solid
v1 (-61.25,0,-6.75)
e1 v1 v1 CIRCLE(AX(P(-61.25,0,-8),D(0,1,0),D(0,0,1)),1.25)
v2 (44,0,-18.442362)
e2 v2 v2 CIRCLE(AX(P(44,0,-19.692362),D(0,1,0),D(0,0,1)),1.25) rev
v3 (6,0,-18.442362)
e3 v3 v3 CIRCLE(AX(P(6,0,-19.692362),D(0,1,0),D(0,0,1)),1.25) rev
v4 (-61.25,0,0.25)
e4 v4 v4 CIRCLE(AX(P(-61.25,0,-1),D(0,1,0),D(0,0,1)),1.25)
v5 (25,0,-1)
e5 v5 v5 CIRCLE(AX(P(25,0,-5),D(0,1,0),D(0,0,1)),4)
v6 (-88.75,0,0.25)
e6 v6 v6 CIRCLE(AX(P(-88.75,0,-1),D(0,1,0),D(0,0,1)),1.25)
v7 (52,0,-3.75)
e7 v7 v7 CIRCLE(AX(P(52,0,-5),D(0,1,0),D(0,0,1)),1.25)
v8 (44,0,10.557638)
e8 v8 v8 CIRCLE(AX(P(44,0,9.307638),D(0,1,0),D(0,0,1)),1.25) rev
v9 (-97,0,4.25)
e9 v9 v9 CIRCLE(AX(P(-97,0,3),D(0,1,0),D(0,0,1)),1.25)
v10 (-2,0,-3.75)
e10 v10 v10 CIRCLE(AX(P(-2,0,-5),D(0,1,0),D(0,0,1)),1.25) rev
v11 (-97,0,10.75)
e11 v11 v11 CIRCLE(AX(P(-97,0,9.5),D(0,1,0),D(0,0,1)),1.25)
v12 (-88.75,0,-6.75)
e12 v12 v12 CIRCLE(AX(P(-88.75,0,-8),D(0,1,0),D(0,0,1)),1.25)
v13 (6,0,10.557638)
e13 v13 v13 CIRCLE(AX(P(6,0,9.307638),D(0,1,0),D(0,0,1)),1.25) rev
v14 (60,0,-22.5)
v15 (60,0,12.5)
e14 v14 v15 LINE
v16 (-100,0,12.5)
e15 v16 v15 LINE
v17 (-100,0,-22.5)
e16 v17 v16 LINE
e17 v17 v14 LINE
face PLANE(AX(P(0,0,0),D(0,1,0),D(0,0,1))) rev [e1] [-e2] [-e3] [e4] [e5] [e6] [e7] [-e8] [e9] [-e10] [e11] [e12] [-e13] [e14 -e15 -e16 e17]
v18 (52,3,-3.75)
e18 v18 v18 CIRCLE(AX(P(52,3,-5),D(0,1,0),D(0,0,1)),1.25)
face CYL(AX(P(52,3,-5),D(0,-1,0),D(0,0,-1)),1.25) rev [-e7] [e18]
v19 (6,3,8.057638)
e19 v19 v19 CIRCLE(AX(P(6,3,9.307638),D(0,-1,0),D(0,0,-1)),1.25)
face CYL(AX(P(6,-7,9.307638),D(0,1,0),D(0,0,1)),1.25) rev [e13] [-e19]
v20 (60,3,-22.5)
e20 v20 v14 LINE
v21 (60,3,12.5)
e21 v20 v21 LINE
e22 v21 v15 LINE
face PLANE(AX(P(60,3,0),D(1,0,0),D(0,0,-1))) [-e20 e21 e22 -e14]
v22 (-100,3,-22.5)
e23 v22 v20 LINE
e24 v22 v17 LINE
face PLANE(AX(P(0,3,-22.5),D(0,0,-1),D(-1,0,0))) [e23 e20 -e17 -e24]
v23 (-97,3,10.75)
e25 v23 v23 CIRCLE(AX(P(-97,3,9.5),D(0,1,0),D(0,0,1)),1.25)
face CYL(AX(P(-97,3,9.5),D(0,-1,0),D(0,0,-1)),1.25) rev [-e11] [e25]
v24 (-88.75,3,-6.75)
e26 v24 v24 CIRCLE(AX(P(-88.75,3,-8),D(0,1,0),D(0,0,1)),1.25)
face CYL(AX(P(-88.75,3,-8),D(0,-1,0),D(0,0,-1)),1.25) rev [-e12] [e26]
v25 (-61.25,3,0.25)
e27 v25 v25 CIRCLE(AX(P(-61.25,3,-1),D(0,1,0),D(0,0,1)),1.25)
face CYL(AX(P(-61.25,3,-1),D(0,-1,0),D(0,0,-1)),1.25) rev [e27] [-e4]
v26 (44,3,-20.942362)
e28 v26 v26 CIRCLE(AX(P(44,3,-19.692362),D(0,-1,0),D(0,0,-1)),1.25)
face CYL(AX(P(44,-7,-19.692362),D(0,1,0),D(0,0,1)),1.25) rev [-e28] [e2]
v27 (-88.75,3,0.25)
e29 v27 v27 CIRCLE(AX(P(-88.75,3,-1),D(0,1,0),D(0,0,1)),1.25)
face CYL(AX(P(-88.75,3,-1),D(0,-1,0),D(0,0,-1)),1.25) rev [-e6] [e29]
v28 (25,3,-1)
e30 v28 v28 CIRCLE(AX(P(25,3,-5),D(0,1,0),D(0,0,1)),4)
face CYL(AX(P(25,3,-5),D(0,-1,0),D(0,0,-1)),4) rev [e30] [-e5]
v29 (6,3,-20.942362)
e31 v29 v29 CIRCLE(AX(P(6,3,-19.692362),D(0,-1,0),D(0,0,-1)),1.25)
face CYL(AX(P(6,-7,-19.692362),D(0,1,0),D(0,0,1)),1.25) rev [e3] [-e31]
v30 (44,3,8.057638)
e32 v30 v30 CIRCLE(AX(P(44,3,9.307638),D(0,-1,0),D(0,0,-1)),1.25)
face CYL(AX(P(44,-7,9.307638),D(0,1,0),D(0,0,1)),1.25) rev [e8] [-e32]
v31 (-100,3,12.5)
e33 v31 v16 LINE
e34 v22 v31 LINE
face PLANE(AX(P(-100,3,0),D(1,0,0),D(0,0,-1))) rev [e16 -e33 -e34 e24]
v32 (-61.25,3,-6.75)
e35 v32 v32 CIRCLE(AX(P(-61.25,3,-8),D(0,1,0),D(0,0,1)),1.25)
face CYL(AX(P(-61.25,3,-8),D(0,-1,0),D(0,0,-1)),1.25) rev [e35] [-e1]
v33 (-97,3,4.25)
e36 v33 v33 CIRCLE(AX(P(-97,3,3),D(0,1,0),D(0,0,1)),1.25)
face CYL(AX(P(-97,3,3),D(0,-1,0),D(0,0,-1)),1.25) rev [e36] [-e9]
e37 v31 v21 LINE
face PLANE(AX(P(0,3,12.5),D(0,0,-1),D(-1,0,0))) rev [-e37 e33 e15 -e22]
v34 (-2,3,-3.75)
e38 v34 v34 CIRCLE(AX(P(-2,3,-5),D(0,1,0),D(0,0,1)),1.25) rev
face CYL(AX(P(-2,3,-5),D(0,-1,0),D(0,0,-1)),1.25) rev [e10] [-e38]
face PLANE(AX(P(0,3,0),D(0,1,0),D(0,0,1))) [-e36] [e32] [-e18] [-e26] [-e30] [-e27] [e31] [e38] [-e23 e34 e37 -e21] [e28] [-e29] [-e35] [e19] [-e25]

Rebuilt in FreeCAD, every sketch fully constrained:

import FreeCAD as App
import Part
import Sketcher

doc = App.newDocument("Part")
body = doc.addObject("PartDesign::Body", "Body")

# Sketch on XZ plane
sketch1 = body.newObject("Sketcher::SketchObject", "Sketch")
sketch1.AttachmentSupport = (doc.getObject("XZ_Plane"), [""])
sketch1.MapMode = "FlatFace"
sketch1.addGeometry([
    Part.LineSegment(App.Vector(-100, -22.5, 0), App.Vector(-100, 12.5, 0)),  # 0
    Part.LineSegment(App.Vector(-100, 12.5, 0), App.Vector(60, 12.5, 0)),  # 1
    Part.LineSegment(App.Vector(60, 12.5, 0), App.Vector(60, -22.5, 0)),  # 2
    Part.LineSegment(App.Vector(60, -22.5, 0), App.Vector(-100, -22.5, 0)),  # 3
    Part.Circle(App.Vector(-97, 9.5, 0), App.Vector(0, 0, 1), 1.2),  # 4
    Part.Circle(App.Vector(-97, 3, 0), App.Vector(0, 0, 1), 1.2),  # 5
    Part.Circle(App.Vector(-88.8, -1, 0), App.Vector(0, 0, 1), 1.2),  # 6
    Part.Circle(App.Vector(-61.2, -1, 0), App.Vector(0, 0, 1), 1.2),  # 7
    Part.Circle(App.Vector(-88.8, -8, 0), App.Vector(0, 0, 1), 1.2),  # 8
    Part.Circle(App.Vector(-61.2, -8, 0), App.Vector(0, 0, 1), 1.2),  # 9
    Part.Circle(App.Vector(-2, -5, 0), App.Vector(0, 0, 1), 1.2),  # 10
    Part.Circle(App.Vector(25, -5, 0), App.Vector(0, 0, 1), 4),  # 11
    Part.Circle(App.Vector(52, -5, 0), App.Vector(0, 0, 1), 1.2),  # 12
], False)
sketch1.addConstraint([
    Sketcher.Constraint("Coincident", 0, 2, 1, 1),
    Sketcher.Constraint("Coincident", 1, 2, 2, 1),
    Sketcher.Constraint("Coincident", 2, 2, 3, 1),
    Sketcher.Constraint("Coincident", 3, 2, 0, 1),
    Sketcher.Constraint("Vertical", 0),
    Sketcher.Constraint("Horizontal", 1),
    Sketcher.Constraint("Vertical", 2),
    Sketcher.Constraint("Horizontal", 3),
    Sketcher.Constraint("Equal", 4, 5),
    Sketcher.Constraint("Equal", 5, 6),
    Sketcher.Constraint("Equal", 6, 7),
    Sketcher.Constraint("Equal", 7, 8),
    Sketcher.Constraint("Equal", 8, 9),
    Sketcher.Constraint("Equal", 9, 10),
    Sketcher.Constraint("Equal", 10, 12),
    Sketcher.Constraint("Horizontal", 6, 3, 7, 3),
    Sketcher.Constraint("Horizontal", 8, 3, 9, 3),
    Sketcher.Constraint("Horizontal", 10, 3, 11, 3),
    Sketcher.Constraint("Horizontal", 11, 3, 12, 3),
    Sketcher.Constraint("Vertical", 4, 3, 5, 3),
    Sketcher.Constraint("Vertical", 6, 3, 8, 3),
    Sketcher.Constraint("Vertical", 7, 3, 9, 3),
    Sketcher.Constraint("Diameter", 11, 8.0),
    Sketcher.Constraint("Diameter", 4, 2.5),
    Sketcher.Constraint("DistanceX", 1, 1, 1, 2, 160.0),
    Sketcher.Constraint("DistanceY", 0, 1, 0, 2, 35.0),
    Sketcher.Constraint("DistanceX", 4, 3, -1, 1, 97.0),
    Sketcher.Constraint("DistanceY", -1, 1, 5, 3, 3.0),
    Sketcher.Constraint("DistanceY", 6, 3, -1, 1, 1.0),
    Sketcher.Constraint("DistanceY", 8, 3, -1, 1, 8.0),
    Sketcher.Constraint("DistanceX", 10, 3, -1, 1, 2.0),
    Sketcher.Constraint("DistanceY", 10, 3, -1, 1, 5.0),
    Sketcher.Constraint("DistanceX", -1, 1, 11, 3, 25.0),
    Sketcher.Constraint("DistanceX", -1, 1, 12, 3, 52.0),
    Sketcher.Constraint("DistanceX", 0, 2, -1, 1, 100.0),
    Sketcher.Constraint("DistanceY", 4, 3, 0, 2, 3.0),
    Sketcher.Constraint("DistanceY", -1, 1, 4, 3, 9.5),
    Sketcher.Constraint("DistanceX", 6, 3, 7, 3, 27.5),
    Sketcher.Constraint("DistanceX", 6, 3, -1, 1, 88.75),
])
pad1 = body.newObject("PartDesign::Pad", "Pad")
pad1.Profile = sketch1
pad1.Length = 3
pad1.Reversed = True

# Sketch on XZ plane
sketch2 = body.newObject("Sketcher::SketchObject", "Sketch001")
sketch2.AttachmentSupport = (doc.getObject("XZ_Plane"), [""])
sketch2.MapMode = "FlatFace"
sketch2.AttachmentOffset = App.Placement(App.Vector(0, 0, -3), App.Rotation())
sketch2.addGeometry([
    Part.Circle(App.Vector(44, 9.3, 0), App.Vector(0, 0, 1), 1.2),
    Part.Circle(App.Vector(44, -19.7, 0), App.Vector(0, 0, 1), 1.2),
    Part.Circle(App.Vector(6, -19.7, 0), App.Vector(0, 0, 1), 1.2),
    Part.Circle(App.Vector(6, 9.3, 0), App.Vector(0, 0, 1), 1.2),
], False)
sketch2.addConstraint([
    Sketcher.Constraint("Equal", 0, 1),
    Sketcher.Constraint("Equal", 1, 2),
    Sketcher.Constraint("Equal", 2, 3),
    Sketcher.Constraint("Horizontal", 1, 3, 2, 3),
    Sketcher.Constraint("Horizontal", 0, 3, 3, 3),
    Sketcher.Constraint("Vertical", 0, 3, 1, 3),
    Sketcher.Constraint("Vertical", 2, 3, 3, 3),
    Sketcher.Constraint("Diameter", 0, 2.5),
    Sketcher.Constraint("DistanceX", -1, 1, 0, 3, 44.0),
    Sketcher.Constraint("DistanceX", -1, 1, 2, 3, 6.0),
    Sketcher.Constraint("DistanceY", 1, 3, 0, 3, 29.0),
    Sketcher.Constraint("DistanceY", -1, 1, 0, 3, 9.307638),
])
pocket1 = body.newObject("PartDesign::Pocket", "Pocket")
pocket1.Profile = sketch2
pocket1.Length = 10
pocket1.Reversed = True

doc.recompute()
